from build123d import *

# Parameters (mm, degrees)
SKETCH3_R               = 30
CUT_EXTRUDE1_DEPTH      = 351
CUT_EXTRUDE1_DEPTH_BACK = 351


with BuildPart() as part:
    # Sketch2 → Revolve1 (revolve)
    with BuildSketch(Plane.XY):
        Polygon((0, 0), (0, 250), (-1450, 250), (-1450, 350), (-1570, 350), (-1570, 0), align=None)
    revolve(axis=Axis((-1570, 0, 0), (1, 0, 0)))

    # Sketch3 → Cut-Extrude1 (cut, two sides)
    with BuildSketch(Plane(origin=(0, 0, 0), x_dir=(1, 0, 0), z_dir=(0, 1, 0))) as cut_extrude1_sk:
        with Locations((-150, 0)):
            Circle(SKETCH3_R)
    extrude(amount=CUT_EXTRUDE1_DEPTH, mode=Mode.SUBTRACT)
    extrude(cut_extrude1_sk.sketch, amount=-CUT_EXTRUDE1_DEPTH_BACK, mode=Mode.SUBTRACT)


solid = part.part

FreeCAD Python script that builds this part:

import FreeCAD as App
import Part
import Sketcher
from FreeCAD import Vector

doc = App.newDocument("Part")
body = doc.addObject("PartDesign::Body", "Body")

sketch1 = doc.addObject("Sketcher::SketchObject", "Sketch")
body.addObject(sketch1)
sketch1.AttachmentSupport = (doc.XY_Plane, [""])
sketch1.MapMode = "FlatFace"
sketch1.addGeometry(Part.LineSegment(Vector(0, 0, 0), Vector(0, 250, 0)), False)
sketch1.addGeometry(Part.LineSegment(Vector(0, 250, 0), Vector(-1450, 250, 0)), False)
sketch1.addGeometry(Part.LineSegment(Vector(-1450, 250, 0), Vector(-1450, 350, 0)), False)
sketch1.addGeometry(Part.LineSegment(Vector(-1450, 350, 0), Vector(-1570, 350, 0)), False)
sketch1.addGeometry(Part.LineSegment(Vector(-1570, 350, 0), Vector(-1570, 0, 0)), False)
sketch1.addGeometry(Part.LineSegment(Vector(-1570, 0, 0), Vector(0, 0, 0)), False)
sketch1.addConstraint(Sketcher.Constraint("Coincident", 0, 2, 1, 1))
sketch1.addConstraint(Sketcher.Constraint("Coincident", 1, 2, 2, 1))
sketch1.addConstraint(Sketcher.Constraint("Coincident", 2, 2, 3, 1))
sketch1.addConstraint(Sketcher.Constraint("Coincident", 3, 2, 4, 1))
sketch1.addConstraint(Sketcher.Constraint("Coincident", 4, 2, 5, 1))
sketch1.addConstraint(Sketcher.Constraint("Coincident", 5, 2, 0, 1))
sketch1.addConstraint(Sketcher.Constraint("Vertical", 0))
sketch1.addConstraint(Sketcher.Constraint("Horizontal", 1))
sketch1.addConstraint(Sketcher.Constraint("Vertical", 2))
sketch1.addConstraint(Sketcher.Constraint("Horizontal", 3))
sketch1.addConstraint(Sketcher.Constraint("Vertical", 4))
sketch1.addConstraint(Sketcher.Constraint("Horizontal", 5))
sketch1.addConstraint(Sketcher.Constraint("Coincident", 5, 2, -1, 1))
sketch1.addConstraint(Sketcher.Constraint("DistanceX", 1, 2, 1, 1, 1450.0))
sketch1.addConstraint(Sketcher.Constraint("DistanceX", 3, 2, 3, 1, 120.0))
sketch1.addConstraint(Sketcher.Constraint("DistanceY", 0, 1, 0, 2, 250.0))
sketch1.addConstraint(Sketcher.Constraint("DistanceY", 2, 1, 2, 2, 100.0))
revolution = doc.addObject("PartDesign::Revolution", "Revolution")
body.addObject(revolution)
revolution.Profile = sketch1
revolution.ReferenceAxis = (sketch1, ["H_Axis"])
revolution.Angle = 360

sketch2 = doc.addObject("Sketcher::SketchObject", "Sketch001")
body.addObject(sketch2)
sketch2.AttachmentSupport = (doc.XZ_Plane, [""])
sketch2.MapMode = "FlatFace"
sketch2.addGeometry(Part.Circle(Vector(-150, 0, 0), Vector(0, 0, 1), 30), False)
sketch2.addConstraint(Sketcher.Constraint("PointOnObject", 0, 3, -1))
sketch2.addConstraint(Sketcher.Constraint("Diameter", 0, 60.0))
sketch2.addConstraint(Sketcher.Constraint("DistanceX", 0, 3, -1, 1, 150.0))
pocket1 = doc.addObject("PartDesign::Pocket", "Pocket")
body.addObject(pocket1)
pocket1.Profile = sketch2
pocket1.Type = "ThroughAll"
pocket1.Midplane = True

doc.recompute()
